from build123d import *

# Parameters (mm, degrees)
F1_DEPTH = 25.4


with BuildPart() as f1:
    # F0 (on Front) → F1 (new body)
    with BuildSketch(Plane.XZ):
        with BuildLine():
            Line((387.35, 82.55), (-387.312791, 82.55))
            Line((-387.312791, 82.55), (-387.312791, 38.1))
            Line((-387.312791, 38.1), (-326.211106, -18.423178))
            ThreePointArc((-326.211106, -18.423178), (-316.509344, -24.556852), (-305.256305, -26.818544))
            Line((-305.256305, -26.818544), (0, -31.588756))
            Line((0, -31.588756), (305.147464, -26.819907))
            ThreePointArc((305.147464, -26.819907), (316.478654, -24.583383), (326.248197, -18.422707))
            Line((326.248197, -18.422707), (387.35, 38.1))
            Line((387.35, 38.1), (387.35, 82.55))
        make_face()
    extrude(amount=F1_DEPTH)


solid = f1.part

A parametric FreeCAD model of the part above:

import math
import FreeCAD as App
import Part
import Sketcher
from FreeCAD import Vector
Q = App.Units.Quantity

doc = App.newDocument("Part")
body = doc.addObject("PartDesign::Body", "Body")

# Sketch on XZ plane
sketch1 = body.newObject("Sketcher::SketchObject", "Sketch")
sketch1.AttachmentSupport = (doc.getObject("XZ_Plane"), [""])
sketch1.MapMode = "FlatFace"
sketch1.addGeometry([
    Part.LineSegment(Vector(387.35, 82.55, 0), Vector(-387.312791, 82.55, 0)),  # 0
    Part.LineSegment(Vector(-387.312791, 82.55, 0), Vector(-387.312791, 38.1, 0)),  # 1
    Part.LineSegment(Vector(-387.312791, 38.1, 0), Vector(-326.211106, -18.423178, 0)),  # 2
    Part.ArcOfCircle(Part.Circle(Vector(-304.762793, 4.762495, 0), Vector(0, 0, 1), 31.584895), math.radians(-132.77091), math.radians(-90.89528)),  # 3
    Part.LineSegment(Vector(-305.256305, -26.818544, 0), Vector(0, -31.588756, 0)),  # 4
    Part.LineSegment(Vector(0, -31.588756, 0), Vector(305.147464, -26.819907, 0)),  # 5
    Part.ArcOfCircle(Part.Circle(Vector(304.800003, 4.763078, 0), Vector(0, 0, 1), 31.584896), math.radians(-89.369684), math.radians(-47.229385)),  # 6
    Part.LineSegment(Vector(326.248197, -18.422707, 0), Vector(387.35, 38.1, 0)),  # 7
    Part.LineSegment(Vector(387.35, 38.1, 0), Vector(387.35, 82.55, 0)),  # 8
], False)
sketch1.addConstraint([
    Sketcher.Constraint("Coincident", 0, 2, 1, 1),
    Sketcher.Constraint("Coincident", 1, 2, 2, 1),
    Sketcher.Constraint("Coincident", 2, 2, 3, 1),
    Sketcher.Constraint("Coincident", 3, 2, 4, 1),
    Sketcher.Constraint("Coincident", 4, 2, 5, 1),
    Sketcher.Constraint("Coincident", 5, 2, 6, 1),
    Sketcher.Constraint("Coincident", 6, 2, 7, 1),
    Sketcher.Constraint("Coincident", 7, 2, 8, 1),
    Sketcher.Constraint("Coincident", 8, 2, 0, 1),
    Sketcher.Constraint("Horizontal", 0),
    Sketcher.Constraint("Vertical", 1),
    Sketcher.Constraint("Vertical", 8),
    Sketcher.Constraint("PointOnObject", 4, 2, -2),
    Sketcher.Constraint("DistanceX", -1, 1, 6, 3, Q("12.0000001 in")),
    Sketcher.Constraint("DistanceY", 1, 2, 1, 1, Q("1.75 in")),
    Sketcher.Constraint("DistanceY", 8, 1, 8, 2, Q("1.75 in")),
    Sketcher.Constraint("DistanceY", -1, 1, 1, 2, Q("1.5 in")),
    Sketcher.Constraint("Radius", 3, Q("1.2434998 in")),
    Sketcher.Constraint("Radius", 6, Q("1.2434998 in")),
    Sketcher.Constraint("DistanceX", -1, 1, 7, 2, Q("15.25 in")),
    Sketcher.Constraint("DistanceX", 0, 2, 3, 3, Q("3.2499999 in")),
    Sketcher.Constraint("DistanceY", -1, 1, 3, 3, Q("0.1874998 in")),
    Sketcher.Constraint("DistanceX", 0, 2, 0, 1, 774.662791),
    Sketcher.Constraint("DistanceX", 2, 2, 3, 2, 20.954801),
    Sketcher.Constraint("DistanceY", 5, 2, 6, 2, 8.3972),
    Sketcher.Constraint("Distance", 7, 83.23609),
    Sketcher.Constraint("DistanceY", 2, 2, -1, 1, 18.423178),
    Sketcher.Constraint("DistanceY", 3, 2, 6, 3, 31.581622),
    Sketcher.Constraint("DistanceY", 4, 2, 3, 2, 4.770212),
])
pad1 = body.newObject("PartDesign::Pad", "Pad")
pad1.Profile = sketch1
pad1.Length = Q("1 in")

doc.recompute()
